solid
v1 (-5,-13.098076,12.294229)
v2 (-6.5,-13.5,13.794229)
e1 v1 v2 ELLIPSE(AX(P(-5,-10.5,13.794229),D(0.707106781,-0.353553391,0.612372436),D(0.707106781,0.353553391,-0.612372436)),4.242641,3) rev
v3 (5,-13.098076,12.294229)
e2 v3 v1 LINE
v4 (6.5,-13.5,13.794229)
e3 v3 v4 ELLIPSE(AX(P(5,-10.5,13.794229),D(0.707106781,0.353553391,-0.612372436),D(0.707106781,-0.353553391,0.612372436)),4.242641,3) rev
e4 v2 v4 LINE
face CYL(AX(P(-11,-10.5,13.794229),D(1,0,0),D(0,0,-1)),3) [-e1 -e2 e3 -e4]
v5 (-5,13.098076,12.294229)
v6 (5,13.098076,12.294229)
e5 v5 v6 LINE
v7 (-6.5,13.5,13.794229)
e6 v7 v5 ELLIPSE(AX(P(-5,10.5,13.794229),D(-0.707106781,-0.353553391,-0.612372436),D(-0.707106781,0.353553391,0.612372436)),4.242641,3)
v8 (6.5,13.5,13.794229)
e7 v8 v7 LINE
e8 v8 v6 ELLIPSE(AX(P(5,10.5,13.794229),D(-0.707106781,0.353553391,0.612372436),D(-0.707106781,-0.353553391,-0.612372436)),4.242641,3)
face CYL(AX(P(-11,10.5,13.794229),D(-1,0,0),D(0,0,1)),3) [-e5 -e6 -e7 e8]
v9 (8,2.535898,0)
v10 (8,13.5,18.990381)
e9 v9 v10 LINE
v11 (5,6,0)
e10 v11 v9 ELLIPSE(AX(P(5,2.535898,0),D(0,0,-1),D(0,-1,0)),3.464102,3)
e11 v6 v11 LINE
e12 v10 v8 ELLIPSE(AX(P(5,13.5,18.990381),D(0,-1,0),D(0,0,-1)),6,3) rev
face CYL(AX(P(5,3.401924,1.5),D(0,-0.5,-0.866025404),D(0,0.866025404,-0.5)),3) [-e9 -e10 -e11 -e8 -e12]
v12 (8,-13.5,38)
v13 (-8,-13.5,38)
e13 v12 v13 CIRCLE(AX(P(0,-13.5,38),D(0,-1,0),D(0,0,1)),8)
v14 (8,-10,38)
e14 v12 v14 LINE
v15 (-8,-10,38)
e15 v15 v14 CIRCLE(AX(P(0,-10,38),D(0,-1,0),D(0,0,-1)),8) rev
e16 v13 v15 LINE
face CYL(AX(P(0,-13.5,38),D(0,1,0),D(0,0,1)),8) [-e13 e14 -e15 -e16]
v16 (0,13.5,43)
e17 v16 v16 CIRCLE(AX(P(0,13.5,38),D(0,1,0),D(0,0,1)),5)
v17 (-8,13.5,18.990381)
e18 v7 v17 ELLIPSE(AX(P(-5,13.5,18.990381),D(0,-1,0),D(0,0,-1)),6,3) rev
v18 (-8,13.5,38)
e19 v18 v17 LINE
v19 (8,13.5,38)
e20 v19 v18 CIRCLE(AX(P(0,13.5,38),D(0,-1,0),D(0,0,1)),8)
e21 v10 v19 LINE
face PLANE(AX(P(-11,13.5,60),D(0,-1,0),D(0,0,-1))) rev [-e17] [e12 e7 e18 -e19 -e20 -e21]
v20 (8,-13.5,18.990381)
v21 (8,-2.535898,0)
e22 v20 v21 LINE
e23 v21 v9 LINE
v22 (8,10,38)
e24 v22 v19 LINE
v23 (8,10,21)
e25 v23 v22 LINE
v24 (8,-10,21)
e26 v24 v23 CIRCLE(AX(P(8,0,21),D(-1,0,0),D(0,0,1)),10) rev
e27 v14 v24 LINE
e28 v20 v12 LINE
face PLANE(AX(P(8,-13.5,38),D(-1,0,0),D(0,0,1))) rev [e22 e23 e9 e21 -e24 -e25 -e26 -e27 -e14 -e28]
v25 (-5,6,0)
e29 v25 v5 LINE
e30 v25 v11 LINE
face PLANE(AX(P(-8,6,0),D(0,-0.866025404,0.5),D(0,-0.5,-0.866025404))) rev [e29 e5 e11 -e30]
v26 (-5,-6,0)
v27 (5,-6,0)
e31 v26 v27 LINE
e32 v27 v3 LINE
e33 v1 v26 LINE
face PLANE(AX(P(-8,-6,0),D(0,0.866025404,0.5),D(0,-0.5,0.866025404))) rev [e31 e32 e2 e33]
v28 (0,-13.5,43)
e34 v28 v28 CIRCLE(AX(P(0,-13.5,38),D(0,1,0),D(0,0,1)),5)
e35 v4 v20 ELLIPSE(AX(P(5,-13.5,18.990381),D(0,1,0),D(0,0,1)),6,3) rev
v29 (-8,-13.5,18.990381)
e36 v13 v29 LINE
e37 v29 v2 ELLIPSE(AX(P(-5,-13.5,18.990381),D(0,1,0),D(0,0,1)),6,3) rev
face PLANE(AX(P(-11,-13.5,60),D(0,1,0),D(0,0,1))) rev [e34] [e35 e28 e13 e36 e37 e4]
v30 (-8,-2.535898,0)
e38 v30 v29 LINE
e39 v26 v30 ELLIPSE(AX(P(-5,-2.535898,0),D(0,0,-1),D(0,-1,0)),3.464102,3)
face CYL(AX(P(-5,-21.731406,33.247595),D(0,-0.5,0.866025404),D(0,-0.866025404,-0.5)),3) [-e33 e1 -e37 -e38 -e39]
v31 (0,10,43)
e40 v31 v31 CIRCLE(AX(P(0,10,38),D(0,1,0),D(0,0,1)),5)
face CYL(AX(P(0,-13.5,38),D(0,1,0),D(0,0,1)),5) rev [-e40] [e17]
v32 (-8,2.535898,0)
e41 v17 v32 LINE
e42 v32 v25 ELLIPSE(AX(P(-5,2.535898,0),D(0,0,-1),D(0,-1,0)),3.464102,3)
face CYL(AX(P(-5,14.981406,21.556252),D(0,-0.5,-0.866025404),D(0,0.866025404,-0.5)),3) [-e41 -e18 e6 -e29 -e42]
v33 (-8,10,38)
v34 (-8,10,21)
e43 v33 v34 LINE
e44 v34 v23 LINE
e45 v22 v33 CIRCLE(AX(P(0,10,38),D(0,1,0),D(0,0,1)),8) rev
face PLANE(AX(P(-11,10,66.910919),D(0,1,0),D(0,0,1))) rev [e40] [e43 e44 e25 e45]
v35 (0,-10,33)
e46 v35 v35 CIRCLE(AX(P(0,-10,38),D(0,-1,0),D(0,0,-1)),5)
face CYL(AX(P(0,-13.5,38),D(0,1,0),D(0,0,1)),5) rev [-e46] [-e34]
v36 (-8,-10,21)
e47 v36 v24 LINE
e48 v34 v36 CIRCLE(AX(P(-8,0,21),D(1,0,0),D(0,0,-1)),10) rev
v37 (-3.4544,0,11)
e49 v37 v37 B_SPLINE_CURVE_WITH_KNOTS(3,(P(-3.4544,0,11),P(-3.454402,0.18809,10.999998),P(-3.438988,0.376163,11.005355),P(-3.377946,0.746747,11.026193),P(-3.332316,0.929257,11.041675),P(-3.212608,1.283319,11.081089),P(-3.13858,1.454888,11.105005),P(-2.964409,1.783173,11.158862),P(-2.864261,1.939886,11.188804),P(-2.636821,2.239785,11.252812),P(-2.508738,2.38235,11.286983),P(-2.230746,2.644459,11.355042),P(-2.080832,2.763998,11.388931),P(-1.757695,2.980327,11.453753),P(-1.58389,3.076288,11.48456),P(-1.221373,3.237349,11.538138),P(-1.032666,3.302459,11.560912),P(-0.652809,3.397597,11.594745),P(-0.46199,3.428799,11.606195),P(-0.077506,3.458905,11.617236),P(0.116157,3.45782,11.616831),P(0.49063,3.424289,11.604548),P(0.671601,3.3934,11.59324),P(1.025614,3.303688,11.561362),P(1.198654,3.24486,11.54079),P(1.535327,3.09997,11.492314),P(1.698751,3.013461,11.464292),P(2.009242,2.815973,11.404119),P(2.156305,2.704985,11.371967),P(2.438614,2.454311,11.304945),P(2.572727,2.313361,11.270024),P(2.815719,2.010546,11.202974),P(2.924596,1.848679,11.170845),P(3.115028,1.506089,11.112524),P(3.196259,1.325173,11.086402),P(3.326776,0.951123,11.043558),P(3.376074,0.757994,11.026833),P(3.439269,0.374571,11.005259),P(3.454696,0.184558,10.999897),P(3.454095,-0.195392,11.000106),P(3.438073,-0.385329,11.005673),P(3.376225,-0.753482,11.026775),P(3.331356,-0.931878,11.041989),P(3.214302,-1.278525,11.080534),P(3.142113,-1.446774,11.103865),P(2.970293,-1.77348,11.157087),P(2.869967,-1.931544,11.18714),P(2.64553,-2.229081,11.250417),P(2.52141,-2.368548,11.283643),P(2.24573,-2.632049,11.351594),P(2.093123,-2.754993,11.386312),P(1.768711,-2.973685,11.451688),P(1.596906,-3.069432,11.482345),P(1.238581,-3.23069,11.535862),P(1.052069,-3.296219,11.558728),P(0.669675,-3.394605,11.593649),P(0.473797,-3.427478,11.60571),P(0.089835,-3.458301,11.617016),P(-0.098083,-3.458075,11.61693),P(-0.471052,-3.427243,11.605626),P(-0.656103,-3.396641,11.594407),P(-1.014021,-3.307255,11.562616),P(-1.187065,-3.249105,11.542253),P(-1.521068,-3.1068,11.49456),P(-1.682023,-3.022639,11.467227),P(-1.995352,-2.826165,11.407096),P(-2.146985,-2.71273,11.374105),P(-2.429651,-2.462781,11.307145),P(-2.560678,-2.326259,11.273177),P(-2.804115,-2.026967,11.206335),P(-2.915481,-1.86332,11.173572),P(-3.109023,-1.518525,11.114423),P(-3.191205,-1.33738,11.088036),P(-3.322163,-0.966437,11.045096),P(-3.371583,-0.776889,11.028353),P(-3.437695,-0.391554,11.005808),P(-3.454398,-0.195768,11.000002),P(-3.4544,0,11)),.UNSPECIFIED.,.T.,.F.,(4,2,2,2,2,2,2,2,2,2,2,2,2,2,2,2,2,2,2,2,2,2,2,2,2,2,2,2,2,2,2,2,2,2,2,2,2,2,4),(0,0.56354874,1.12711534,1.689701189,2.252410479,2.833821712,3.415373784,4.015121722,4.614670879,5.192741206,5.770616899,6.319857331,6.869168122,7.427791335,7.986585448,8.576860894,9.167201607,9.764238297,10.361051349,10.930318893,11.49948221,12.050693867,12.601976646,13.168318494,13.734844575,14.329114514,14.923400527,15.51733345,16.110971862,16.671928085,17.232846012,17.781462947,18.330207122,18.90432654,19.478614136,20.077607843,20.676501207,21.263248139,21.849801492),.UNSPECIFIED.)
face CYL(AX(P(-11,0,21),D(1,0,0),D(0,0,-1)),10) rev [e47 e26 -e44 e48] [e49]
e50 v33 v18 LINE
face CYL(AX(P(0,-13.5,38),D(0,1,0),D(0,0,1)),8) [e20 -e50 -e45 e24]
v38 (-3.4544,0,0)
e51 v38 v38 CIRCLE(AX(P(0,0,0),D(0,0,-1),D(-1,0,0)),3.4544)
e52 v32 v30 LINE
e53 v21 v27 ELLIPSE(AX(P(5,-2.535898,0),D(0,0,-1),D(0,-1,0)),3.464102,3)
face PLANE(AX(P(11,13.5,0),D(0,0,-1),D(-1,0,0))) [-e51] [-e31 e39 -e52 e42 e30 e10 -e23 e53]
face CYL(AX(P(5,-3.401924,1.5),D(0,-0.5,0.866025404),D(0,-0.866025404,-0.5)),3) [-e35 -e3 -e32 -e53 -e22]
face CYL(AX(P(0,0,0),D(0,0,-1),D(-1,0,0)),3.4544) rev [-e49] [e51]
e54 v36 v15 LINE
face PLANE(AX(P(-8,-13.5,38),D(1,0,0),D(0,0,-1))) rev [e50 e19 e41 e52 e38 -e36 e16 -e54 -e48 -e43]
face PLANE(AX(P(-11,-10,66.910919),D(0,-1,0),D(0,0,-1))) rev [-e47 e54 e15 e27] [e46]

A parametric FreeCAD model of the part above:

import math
import FreeCAD as App
import Part
import Sketcher
from FreeCAD import Vector
Q = App.Units.Quantity


def edges_at(feature, points):
    """Names of the edges that pass closest to the given points."""
    edges = feature.Shape.Edges
    near = lambda p: min(range(len(edges)), key=lambda i: edges[i].distToShape(Part.Vertex(*p))[0])
    return sorted({f"Edge{near(p) + 1}" for p in points})


def add_polygon(sketch, points):
    """Adds a closed chain of lines whose ends are joined by coincident constraints."""
    first, n = sketch.GeometryCount, len(points)
    for a, b in zip(points, points[1:] + points[:1]):
        sketch.addGeometry(Part.LineSegment(App.Vector(*a, 0), App.Vector(*b, 0)), False)
    for i in range(n):
        sketch.addConstraint(Sketcher.Constraint("Coincident", first + i, 2, first + (i + 1) % n, 1))

doc = App.newDocument("Part")
body = doc.addObject("PartDesign::Body", "Body")

sketch1 = doc.addObject("Sketcher::SketchObject", "Sketch")
body.addObject(sketch1)
sketch1.AttachmentSupport = (doc.XY_Plane, [""])
sketch1.MapMode = "FlatFace"
add_polygon(sketch1, [(-11, 14), (-11, -14), (11, -14), (11, 14)])
sketch1.addConstraint([
    Sketcher.Constraint("Vertical", 0),
    Sketcher.Constraint("Horizontal", 1),
    Sketcher.Constraint("Vertical", 2),
    Sketcher.Constraint("Horizontal", 3),
    Sketcher.Constraint("Symmetric", 0, 2, 2, 2, -1, 1),
    Sketcher.Constraint("DistanceX", 1, 1, 1, 2, 22.0),
    Sketcher.Constraint("DistanceY", 0, 2, 0, 1, 27.0),
])
pad1 = doc.addObject("PartDesign::Pad", "Pad")
body.addObject(pad1)
pad1.Profile = sketch1
pad1.Length = 60

sketch2 = doc.addObject("Sketcher::SketchObject", "Sketch001")
body.addObject(sketch2)
sketch2.AttachmentSupport = (doc.YZ_Plane, [""])
sketch2.MapMode = "FlatFace"
sketch2.addGeometry([
    Part.LineSegment(Vector(10, 21, 0), Vector(10, 67, 0)),
    Part.LineSegment(Vector(10, 67, 0), Vector(-10, 67, 0)),
    Part.LineSegment(Vector(-10, 67, 0), Vector(-10, 21, 0)),
    Part.ArcOfCircle(Part.Circle(Vector(0, 21, 0), Vector(0, 0, 1), 10), math.radians(180), math.radians(360)),
], False)
sketch2.addConstraint([
    Sketcher.Constraint("Coincident", 0, 2, 1, 1),
    Sketcher.Constraint("Coincident", 1, 2, 2, 1),
    Sketcher.Constraint("Tangent", 2, 2, 3, 1),
    Sketcher.Constraint("Tangent", 3, 2, 0, 1),
    Sketcher.Constraint("Vertical", 0),
    Sketcher.Constraint("Horizontal", 1),
    Sketcher.Constraint("Vertical", 2),
    Sketcher.Constraint("PointOnObject", 3, 3, -2),
    Sketcher.Constraint("Radius", 3, 10.0),
    Sketcher.Constraint("DistanceY", -1, 1, 3, 3, 21.0),
    Sketcher.Constraint("DistanceY", 0, 1, 0, 2, 45.910919),
])
pocket1 = doc.addObject("PartDesign::Pocket", "Pocket")
body.addObject(pocket1)
pocket1.Profile = sketch2
pocket1.Type = "ThroughAll"
pocket1.Midplane = True

sketch3 = doc.addObject("Sketcher::SketchObject", "Sketch002")
body.addObject(sketch3)
sketch3.AttachmentSupport = (doc.XZ_Plane, [""])
sketch3.MapMode = "FlatFace"
sketch3.addGeometry([
    Part.Circle(Vector(0, 38, 0), Vector(0, 0, 1), 5),
    Part.LineSegment(Vector(-8, 38, 0), Vector(-8, -12, 0)),
    Part.LineSegment(Vector(-8, -12, 0), Vector(-30, -12, 0)),
    Part.LineSegment(Vector(-30, -12, 0), Vector(-30, 75, 0)),
    Part.LineSegment(Vector(-30, 75, 0), Vector(38, 75, 0)),
    Part.LineSegment(Vector(38, 75, 0), Vector(38, -12, 0)),
    Part.LineSegment(Vector(38, -12, 0), Vector(8, -12, 0)),
    Part.LineSegment(Vector(8, -12, 0), Vector(8, 38, 0)),
    Part.ArcOfCircle(Part.Circle(Vector(0, 38, 0), Vector(0, 0, 1), 8), math.radians(0), math.radians(180)),
], False)
sketch3.addConstraint([
    Sketcher.Constraint("Coincident", 1, 2, 2, 1),
    Sketcher.Constraint("Coincident", 2, 2, 3, 1),
    Sketcher.Constraint("Coincident", 3, 2, 4, 1),
    Sketcher.Constraint("Coincident", 4, 2, 5, 1),
    Sketcher.Constraint("Coincident", 5, 2, 6, 1),
    Sketcher.Constraint("Coincident", 6, 2, 7, 1),
    Sketcher.Constraint("Tangent", 7, 2, 8, 1),
    Sketcher.Constraint("Tangent", 8, 2, 1, 1),
    Sketcher.Constraint("Vertical", 1),
    Sketcher.Constraint("Horizontal", 2),
    Sketcher.Constraint("Vertical", 3),
    Sketcher.Constraint("Horizontal", 4),
    Sketcher.Constraint("Vertical", 5),
    Sketcher.Constraint("Horizontal", 6),
    Sketcher.Constraint("Vertical", 7),
    Sketcher.Constraint("Coincident", 8, 3, 0, 3),
    Sketcher.Constraint("Symmetric", 1, 2, 6, 2, -2),
    Sketcher.Constraint("Diameter", 0, 10.0),
    Sketcher.Constraint("Radius", 8, 8.0),
    Sketcher.Constraint("DistanceY", -1, 1, 0, 3, 38.0),
    Sketcher.Constraint("DistanceY", 1, 2, 1, 1, 49.717299),
    Sketcher.Constraint("DistanceX", 2, 2, 2, 1, 21.90387),
    Sketcher.Constraint("DistanceX", 4, 1, 4, 2, 67.67282),
    Sketcher.Constraint("DistanceY", 3, 1, 3, 2, 86.37607),
])
pocket2 = doc.addObject("PartDesign::Pocket", "Pocket001")
body.addObject(pocket2)
pocket2.Profile = sketch3
pocket2.Type = "ThroughAll"
pocket2.Midplane = True

sketch4 = doc.addObject("Sketcher::SketchObject", "Sketch003")
body.addObject(sketch4)
sketch4.AttachmentSupport = (doc.XY_Plane, [""])
sketch4.MapMode = "FlatFace"
sketch4.addGeometry(Part.Circle(Vector(0, 0, 0), Vector(0, 0, 1), 3.5), False)
sketch4.addConstraint([
    Sketcher.Constraint("Coincident", 0, 3, -1, 1),
    Sketcher.Constraint("Diameter", 0, 6.9088),
])
doc.recompute()
hole = doc.addObject("PartDesign::Hole", "Hole")
body.addObject(hole)
hole.Profile = sketch4
hole.ThreadType = "None"
hole.Diameter = 6.9088
hole.DepthType = "ThroughAll"
hole.Reversed = True

sketch5 = doc.addObject("Sketcher::SketchObject", "Sketch004")
body.addObject(sketch5)
sketch5.AttachmentSupport = (doc.YZ_Plane, [""])
sketch5.MapMode = "FlatFace"
add_polygon(sketch5, [(6, 0), (-6, 0), (-16, 18), (-16, -9), (16, -9), (16, 18)])
sketch5.addConstraint([
    Sketcher.Constraint("Horizontal", 0),
    Sketcher.Constraint("Vertical", 2),
    Sketcher.Constraint("Horizontal", 3),
    Sketcher.Constraint("Vertical", 4),
    Sketcher.Constraint("Symmetric", 0, 2, 5, 2, -1, 1),
    Sketcher.Constraint("Symmetric", 1, 2, 4, 2, -2),
    Sketcher.Constraint("DistanceX", 0, 2, 0, 1, 12.0),
    Sketcher.Constraint("Angle", 1, Q("120 deg")),
    Sketcher.Constraint("DistanceX", 3, 1, 3, 2, 32.372883),
    Sketcher.Constraint("DistanceY", 2, 2, 2, 1, 26.733693),
])
pocket3 = doc.addObject("PartDesign::Pocket", "Pocket002")
body.addObject(pocket3)
pocket3.Profile = sketch5
pocket3.Type = "ThroughAll"
pocket3.Midplane = True
doc.recompute()

fillet = doc.addObject("PartDesign::Fillet", "Fillet")
body.addObject(fillet)
fillet.Base = (pocket3, edges_at(pocket3, [
    (-8, 9.75, 6.495),
    (8, 9.75, 6.495),
    (8, -9.75, 6.495),
    (0, 13.5, 12.99),
    (-8, -9.75, 6.495),
    (0, -13.5, 12.99),
]))
fillet.Radius = 3

doc.recompute()
